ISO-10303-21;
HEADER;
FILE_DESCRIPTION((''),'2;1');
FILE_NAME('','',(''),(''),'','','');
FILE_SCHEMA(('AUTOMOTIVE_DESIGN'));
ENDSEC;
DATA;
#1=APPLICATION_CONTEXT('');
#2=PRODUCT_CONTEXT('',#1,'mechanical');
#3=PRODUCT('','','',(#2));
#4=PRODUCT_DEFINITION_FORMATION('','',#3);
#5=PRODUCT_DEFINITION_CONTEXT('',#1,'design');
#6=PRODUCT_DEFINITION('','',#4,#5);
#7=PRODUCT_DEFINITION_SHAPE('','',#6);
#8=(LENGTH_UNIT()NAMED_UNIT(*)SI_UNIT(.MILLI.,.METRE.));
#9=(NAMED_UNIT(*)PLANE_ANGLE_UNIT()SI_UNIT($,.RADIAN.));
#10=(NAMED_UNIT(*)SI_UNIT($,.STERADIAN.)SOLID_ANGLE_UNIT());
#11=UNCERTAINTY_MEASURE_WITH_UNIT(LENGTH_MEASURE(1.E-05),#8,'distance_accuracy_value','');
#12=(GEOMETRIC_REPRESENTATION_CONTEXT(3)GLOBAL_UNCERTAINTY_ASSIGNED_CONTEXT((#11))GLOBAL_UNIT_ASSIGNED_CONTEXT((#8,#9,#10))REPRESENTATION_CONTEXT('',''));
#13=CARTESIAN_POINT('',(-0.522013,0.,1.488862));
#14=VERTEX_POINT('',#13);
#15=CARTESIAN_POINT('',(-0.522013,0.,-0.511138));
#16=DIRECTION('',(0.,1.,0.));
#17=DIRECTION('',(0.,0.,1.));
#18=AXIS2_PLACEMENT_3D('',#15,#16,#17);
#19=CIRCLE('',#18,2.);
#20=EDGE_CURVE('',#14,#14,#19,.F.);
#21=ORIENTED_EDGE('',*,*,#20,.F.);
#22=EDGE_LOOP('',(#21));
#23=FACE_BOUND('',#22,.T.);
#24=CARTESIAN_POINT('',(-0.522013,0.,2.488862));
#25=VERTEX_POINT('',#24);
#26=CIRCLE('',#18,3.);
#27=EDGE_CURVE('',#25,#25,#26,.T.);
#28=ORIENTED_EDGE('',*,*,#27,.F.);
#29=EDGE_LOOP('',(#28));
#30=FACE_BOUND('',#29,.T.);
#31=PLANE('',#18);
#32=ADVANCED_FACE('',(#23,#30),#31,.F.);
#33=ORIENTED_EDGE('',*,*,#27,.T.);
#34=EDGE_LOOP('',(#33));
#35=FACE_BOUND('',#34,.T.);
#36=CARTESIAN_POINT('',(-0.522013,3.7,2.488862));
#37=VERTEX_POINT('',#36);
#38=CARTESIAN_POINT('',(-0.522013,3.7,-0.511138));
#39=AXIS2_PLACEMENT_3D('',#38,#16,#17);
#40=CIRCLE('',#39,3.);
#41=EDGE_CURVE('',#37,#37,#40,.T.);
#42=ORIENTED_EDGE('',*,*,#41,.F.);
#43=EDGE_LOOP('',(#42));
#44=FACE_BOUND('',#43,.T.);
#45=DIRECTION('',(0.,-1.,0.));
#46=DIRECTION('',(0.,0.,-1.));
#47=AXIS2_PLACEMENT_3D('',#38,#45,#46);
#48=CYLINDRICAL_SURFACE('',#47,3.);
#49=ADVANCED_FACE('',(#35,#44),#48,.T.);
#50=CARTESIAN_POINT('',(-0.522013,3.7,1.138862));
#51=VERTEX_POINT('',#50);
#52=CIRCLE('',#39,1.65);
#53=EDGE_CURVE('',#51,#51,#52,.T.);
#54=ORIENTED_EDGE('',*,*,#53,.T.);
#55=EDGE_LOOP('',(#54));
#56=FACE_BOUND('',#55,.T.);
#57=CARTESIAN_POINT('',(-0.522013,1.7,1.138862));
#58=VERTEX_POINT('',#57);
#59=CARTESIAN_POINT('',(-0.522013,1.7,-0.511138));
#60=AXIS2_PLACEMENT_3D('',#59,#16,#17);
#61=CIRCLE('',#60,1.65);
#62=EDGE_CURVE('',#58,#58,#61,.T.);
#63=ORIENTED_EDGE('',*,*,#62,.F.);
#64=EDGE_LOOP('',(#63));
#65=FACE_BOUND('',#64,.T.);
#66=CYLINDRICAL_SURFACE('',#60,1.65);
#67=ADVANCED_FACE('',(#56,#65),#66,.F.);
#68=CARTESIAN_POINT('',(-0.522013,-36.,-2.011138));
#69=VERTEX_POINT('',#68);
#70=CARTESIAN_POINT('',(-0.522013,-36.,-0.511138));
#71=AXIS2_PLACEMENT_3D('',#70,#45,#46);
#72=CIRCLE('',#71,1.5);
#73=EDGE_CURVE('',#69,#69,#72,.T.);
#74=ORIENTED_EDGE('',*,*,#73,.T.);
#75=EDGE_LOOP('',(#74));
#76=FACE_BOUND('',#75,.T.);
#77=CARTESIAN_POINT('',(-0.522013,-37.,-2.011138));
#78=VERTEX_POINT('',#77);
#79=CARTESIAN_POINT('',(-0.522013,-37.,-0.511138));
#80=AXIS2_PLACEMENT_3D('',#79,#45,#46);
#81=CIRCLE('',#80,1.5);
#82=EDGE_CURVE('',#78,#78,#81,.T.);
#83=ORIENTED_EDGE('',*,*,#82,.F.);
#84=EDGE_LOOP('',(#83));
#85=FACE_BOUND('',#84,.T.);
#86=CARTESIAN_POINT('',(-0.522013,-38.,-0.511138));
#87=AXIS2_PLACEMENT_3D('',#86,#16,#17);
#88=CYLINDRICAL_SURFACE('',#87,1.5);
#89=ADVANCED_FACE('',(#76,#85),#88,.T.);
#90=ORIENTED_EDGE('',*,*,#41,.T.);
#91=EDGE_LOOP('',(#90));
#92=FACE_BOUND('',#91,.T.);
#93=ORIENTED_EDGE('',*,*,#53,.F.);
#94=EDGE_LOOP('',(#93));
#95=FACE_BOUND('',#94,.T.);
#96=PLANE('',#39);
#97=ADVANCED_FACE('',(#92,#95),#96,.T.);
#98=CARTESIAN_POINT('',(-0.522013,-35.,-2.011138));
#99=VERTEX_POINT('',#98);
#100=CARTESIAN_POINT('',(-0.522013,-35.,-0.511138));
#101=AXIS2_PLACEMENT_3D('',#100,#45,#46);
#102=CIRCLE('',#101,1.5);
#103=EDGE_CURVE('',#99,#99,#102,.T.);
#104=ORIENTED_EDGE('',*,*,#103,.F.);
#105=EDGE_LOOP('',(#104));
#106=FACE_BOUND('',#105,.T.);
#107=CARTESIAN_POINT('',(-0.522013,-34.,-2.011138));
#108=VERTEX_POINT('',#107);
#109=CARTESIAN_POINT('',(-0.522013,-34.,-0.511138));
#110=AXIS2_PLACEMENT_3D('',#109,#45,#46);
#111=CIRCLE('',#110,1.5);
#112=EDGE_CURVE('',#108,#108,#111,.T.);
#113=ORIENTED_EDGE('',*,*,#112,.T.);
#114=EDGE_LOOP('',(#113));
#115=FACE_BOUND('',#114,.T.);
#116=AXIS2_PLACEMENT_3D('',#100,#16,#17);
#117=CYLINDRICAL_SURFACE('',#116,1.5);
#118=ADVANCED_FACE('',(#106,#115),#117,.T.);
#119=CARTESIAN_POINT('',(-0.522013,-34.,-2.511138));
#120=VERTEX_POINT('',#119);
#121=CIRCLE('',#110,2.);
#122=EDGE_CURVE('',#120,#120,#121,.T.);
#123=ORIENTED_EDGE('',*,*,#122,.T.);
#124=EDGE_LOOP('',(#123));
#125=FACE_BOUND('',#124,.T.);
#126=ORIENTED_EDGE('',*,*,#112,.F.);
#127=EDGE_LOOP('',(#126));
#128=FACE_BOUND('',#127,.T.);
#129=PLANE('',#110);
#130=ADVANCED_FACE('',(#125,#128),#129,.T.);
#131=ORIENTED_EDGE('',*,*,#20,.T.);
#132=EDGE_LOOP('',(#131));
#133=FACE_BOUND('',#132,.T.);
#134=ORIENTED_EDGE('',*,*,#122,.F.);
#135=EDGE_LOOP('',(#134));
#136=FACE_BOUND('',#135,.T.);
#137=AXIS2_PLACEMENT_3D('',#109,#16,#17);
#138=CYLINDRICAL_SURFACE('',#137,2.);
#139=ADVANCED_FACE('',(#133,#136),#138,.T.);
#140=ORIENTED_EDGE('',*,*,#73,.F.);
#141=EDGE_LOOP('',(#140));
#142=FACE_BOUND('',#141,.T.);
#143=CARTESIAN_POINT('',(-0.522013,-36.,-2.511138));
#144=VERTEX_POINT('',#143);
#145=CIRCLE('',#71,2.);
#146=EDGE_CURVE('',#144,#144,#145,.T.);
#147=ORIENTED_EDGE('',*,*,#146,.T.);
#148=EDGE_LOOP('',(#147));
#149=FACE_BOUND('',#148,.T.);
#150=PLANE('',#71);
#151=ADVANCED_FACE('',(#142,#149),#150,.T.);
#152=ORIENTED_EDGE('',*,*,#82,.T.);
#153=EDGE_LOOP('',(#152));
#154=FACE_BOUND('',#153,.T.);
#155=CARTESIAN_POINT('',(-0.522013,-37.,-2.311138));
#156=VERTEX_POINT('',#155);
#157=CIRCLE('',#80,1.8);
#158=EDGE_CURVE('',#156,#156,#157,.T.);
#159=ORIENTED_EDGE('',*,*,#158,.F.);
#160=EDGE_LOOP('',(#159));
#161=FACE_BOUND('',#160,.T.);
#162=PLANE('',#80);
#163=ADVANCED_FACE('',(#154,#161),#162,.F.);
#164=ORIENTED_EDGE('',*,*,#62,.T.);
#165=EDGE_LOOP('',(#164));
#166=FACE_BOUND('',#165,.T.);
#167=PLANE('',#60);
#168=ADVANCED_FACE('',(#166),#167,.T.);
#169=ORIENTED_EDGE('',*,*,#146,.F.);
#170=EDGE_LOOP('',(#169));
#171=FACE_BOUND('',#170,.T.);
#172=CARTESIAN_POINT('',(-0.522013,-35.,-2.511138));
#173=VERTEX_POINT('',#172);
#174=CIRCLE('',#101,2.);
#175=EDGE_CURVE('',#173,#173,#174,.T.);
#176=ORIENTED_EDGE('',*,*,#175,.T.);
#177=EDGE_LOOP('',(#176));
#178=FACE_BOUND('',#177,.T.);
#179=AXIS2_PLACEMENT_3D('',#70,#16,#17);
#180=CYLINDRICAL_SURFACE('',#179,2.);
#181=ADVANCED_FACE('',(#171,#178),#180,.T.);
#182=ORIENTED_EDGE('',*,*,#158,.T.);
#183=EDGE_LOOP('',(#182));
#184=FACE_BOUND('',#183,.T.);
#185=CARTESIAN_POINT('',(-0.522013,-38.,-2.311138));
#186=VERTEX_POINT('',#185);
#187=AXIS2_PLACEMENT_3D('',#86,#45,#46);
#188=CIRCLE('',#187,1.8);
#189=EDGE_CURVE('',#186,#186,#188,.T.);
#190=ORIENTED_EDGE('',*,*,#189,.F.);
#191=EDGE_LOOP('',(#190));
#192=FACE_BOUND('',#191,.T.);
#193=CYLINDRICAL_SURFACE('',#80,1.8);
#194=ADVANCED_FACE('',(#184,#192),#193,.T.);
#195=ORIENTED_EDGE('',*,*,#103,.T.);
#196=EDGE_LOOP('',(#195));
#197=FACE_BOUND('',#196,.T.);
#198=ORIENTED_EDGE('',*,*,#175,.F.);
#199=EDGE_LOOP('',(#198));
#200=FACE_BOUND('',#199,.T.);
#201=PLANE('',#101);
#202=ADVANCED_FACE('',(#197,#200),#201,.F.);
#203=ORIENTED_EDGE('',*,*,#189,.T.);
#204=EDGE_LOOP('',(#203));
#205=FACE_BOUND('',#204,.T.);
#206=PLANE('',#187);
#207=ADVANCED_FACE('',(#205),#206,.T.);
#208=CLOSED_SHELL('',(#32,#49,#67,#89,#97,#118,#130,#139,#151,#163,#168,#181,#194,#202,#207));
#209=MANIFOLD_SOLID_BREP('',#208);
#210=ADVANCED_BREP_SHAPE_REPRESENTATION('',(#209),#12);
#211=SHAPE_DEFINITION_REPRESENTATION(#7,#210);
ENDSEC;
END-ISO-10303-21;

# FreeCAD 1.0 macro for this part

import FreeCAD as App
import Part
import Sketcher

V = App.Vector
Q = App.Units.Quantity

doc = App.newDocument("Part")
body = doc.addObject("PartDesign::Body", "Body")

# Sketch on XZ plane
sketch1 = body.newObject("Sketcher::SketchObject", "Sketch")
sketch1.AttachmentSupport = (doc.getObject("XZ_Plane"), [""])
sketch1.MapMode = "FlatFace"
sketch1.addGeometry(Part.Circle(V(-0.5, -0.5, 0), V(0, 0, 1), 3), False)
sketch1.addConstraint(Sketcher.Constraint("Diameter", 0, Q("6 mm")))
sketch1.addConstraint(Sketcher.Constraint("DistanceY", 0, 3, -1, 1, Q("0.511138 mm")))
sketch1.addConstraint(Sketcher.Constraint("DistanceX", 0, 3, -1, 1, Q("0.522013 mm")))
pad1 = body.newObject("PartDesign::Pad", "Pad")
pad1.Profile = sketch1
pad1.Length = 3.7
pad1.Reversed = True

# Sketch on XZ plane
sketch2 = body.newObject("Sketcher::SketchObject", "Sketch001")
sketch2.AttachmentSupport = (doc.getObject("XZ_Plane"), [""])
sketch2.MapMode = "FlatFace"
sketch2.addGeometry(Part.Circle(V(-0.5, -0.5, 0), V(0, 0, 1), 1.6), False)
sketch2.addConstraint(Sketcher.Constraint("Diameter", 0, Q("3.2 mm")))
sketch2.addConstraint(Sketcher.Constraint("DistanceY", 0, 3, -1, 1, Q("0.511138 mm")))
sketch2.addConstraint(Sketcher.Constraint("DistanceX", 0, 3, -1, 1, Q("0.522013 mm")))
pad2 = body.newObject("PartDesign::Pad", "Pad001")
pad2.Profile = sketch2
pad2.Length = 1
pad2.Reversed = True

# Sketch on XZ plane
sketch3 = body.newObject("Sketcher::SketchObject", "Sketch002")
sketch3.AttachmentSupport = (doc.getObject("XZ_Plane"), [""])
sketch3.MapMode = "FlatFace"
sketch3.addGeometry(Part.Circle(V(-0.5, -0.5, 0), V(0, 0, 1), 1.5), False)
sketch3.addConstraint(Sketcher.Constraint("Diameter", 0, Q("3 mm")))
sketch3.addConstraint(Sketcher.Constraint("DistanceY", 0, 3, -1, 1, Q("0.511138 mm")))
sketch3.addConstraint(Sketcher.Constraint("DistanceX", 0, 3, -1, 1, Q("0.522013 mm")))
pad3 = body.newObject("PartDesign::Pad", "Pad002")
pad3.Profile = sketch3
pad3.Length = 35

# Sketch on XZ plane
sketch4 = body.newObject("Sketcher::SketchObject", "Sketch003")
sketch4.AttachmentSupport = (doc.getObject("XZ_Plane"), [""])
sketch4.MapMode = "FlatFace"
sketch4.AttachmentOffset = App.Placement(V(0, 0, 35), App.Rotation())
sketch4.addGeometry(Part.Circle(V(-0.5, -0.5, 0), V(0, 0, 1), 2), False)
sketch4.addConstraint(Sketcher.Constraint("Diameter", 0, Q("4 mm")))
sketch4.addConstraint(Sketcher.Constraint("DistanceY", 0, 3, -1, 1, Q("0.511138 mm")))
sketch4.addConstraint(Sketcher.Constraint("DistanceX", 0, 3, -1, 1, Q("0.522013 mm")))
pad4 = body.newObject("PartDesign::Pad", "Pad003")
pad4.Profile = sketch4
pad4.Length = 1

# Sketch on XZ plane
sketch5 = body.newObject("Sketcher::SketchObject", "Sketch004")
sketch5.AttachmentSupport = (doc.getObject("XZ_Plane"), [""])
sketch5.MapMode = "FlatFace"
sketch5.AttachmentOffset = App.Placement(V(0, 0, 36), App.Rotation())
sketch5.addGeometry(Part.Circle(V(-0.5, -0.5, 0), V(0, 0, 1), 1.5), False)
sketch5.addConstraint(Sketcher.Constraint("Diameter", 0, Q("3 mm")))
sketch5.addConstraint(Sketcher.Constraint("DistanceY", 0, 3, -1, 1, Q("0.511138 mm")))
sketch5.addConstraint(Sketcher.Constraint("DistanceX", 0, 3, -1, 1, Q("0.522013 mm")))
pad5 = body.newObject("PartDesign::Pad", "Pad004")
pad5.Profile = sketch5
pad5.Length = 2

# Sketch on XZ plane
sketch6 = body.newObject("Sketcher::SketchObject", "Sketch005")
sketch6.AttachmentSupport = (doc.getObject("XZ_Plane"), [""])
sketch6.MapMode = "FlatFace"
sketch6.AttachmentOffset = App.Placement(V(0, 0, 38), App.Rotation())
sketch6.addGeometry(Part.Circle(V(-0.5, -0.5, 0), V(0, 0, 1), 1.8), False)
sketch6.addConstraint(Sketcher.Constraint("Diameter", 0, Q("3.6 mm")))
sketch6.addConstraint(Sketcher.Constraint("DistanceY", 0, 3, -1, 1, Q("0.511138 mm")))
sketch6.addConstraint(Sketcher.Constraint("DistanceX", 0, 3, -1, 1, Q("0.522013 mm")))
pad6 = body.newObject("PartDesign::Pad", "Pad005")
pad6.Profile = sketch6
pad6.Length = 1
pad6.Reversed = True

# Sketch on XZ plane
sketch7 = body.newObject("Sketcher::SketchObject", "Sketch006")
sketch7.AttachmentSupport = (doc.getObject("XZ_Plane"), [""])
sketch7.MapMode = "FlatFace"
sketch7.AttachmentOffset = App.Placement(V(0, 0, -3.7), App.Rotation())
sketch7.addGeometry(Part.Circle(V(-0.5, -0.5, 0), V(0, 0, 1), 1.6), False)
sketch7.addConstraint(Sketcher.Constraint("Diameter", 0, Q("3.3 mm")))
sketch7.addConstraint(Sketcher.Constraint("DistanceY", 0, 3, -1, 1, Q("0.511138 mm")))
sketch7.addConstraint(Sketcher.Constraint("DistanceX", 0, 3, -1, 1, Q("0.522013 mm")))
pocket1 = body.newObject("PartDesign::Pocket", "Pocket")
pocket1.Profile = sketch7
pocket1.Length = 2
pocket1.Reversed = True

# Sketch on XZ plane
sketch8 = body.newObject("Sketcher::SketchObject", "Sketch007")
sketch8.AttachmentSupport = (doc.getObject("XZ_Plane"), [""])
sketch8.MapMode = "FlatFace"
sketch8.addGeometry(Part.Circle(V(-0.5, -0.5, 0), V(0, 0, 1), 2), False)
sketch8.addConstraint(Sketcher.Constraint("Diameter", 0, Q("4 mm")))
sketch8.addConstraint(Sketcher.Constraint("DistanceY", 0, 3, -1, 1, Q("0.511138 mm")))
sketch8.addConstraint(Sketcher.Constraint("DistanceX", 0, 3, -1, 1, Q("0.522013 mm")))
pad7 = body.newObject("PartDesign::Pad", "Pad006")
pad7.Profile = sketch8
pad7.Length = 34

doc.recompute()
